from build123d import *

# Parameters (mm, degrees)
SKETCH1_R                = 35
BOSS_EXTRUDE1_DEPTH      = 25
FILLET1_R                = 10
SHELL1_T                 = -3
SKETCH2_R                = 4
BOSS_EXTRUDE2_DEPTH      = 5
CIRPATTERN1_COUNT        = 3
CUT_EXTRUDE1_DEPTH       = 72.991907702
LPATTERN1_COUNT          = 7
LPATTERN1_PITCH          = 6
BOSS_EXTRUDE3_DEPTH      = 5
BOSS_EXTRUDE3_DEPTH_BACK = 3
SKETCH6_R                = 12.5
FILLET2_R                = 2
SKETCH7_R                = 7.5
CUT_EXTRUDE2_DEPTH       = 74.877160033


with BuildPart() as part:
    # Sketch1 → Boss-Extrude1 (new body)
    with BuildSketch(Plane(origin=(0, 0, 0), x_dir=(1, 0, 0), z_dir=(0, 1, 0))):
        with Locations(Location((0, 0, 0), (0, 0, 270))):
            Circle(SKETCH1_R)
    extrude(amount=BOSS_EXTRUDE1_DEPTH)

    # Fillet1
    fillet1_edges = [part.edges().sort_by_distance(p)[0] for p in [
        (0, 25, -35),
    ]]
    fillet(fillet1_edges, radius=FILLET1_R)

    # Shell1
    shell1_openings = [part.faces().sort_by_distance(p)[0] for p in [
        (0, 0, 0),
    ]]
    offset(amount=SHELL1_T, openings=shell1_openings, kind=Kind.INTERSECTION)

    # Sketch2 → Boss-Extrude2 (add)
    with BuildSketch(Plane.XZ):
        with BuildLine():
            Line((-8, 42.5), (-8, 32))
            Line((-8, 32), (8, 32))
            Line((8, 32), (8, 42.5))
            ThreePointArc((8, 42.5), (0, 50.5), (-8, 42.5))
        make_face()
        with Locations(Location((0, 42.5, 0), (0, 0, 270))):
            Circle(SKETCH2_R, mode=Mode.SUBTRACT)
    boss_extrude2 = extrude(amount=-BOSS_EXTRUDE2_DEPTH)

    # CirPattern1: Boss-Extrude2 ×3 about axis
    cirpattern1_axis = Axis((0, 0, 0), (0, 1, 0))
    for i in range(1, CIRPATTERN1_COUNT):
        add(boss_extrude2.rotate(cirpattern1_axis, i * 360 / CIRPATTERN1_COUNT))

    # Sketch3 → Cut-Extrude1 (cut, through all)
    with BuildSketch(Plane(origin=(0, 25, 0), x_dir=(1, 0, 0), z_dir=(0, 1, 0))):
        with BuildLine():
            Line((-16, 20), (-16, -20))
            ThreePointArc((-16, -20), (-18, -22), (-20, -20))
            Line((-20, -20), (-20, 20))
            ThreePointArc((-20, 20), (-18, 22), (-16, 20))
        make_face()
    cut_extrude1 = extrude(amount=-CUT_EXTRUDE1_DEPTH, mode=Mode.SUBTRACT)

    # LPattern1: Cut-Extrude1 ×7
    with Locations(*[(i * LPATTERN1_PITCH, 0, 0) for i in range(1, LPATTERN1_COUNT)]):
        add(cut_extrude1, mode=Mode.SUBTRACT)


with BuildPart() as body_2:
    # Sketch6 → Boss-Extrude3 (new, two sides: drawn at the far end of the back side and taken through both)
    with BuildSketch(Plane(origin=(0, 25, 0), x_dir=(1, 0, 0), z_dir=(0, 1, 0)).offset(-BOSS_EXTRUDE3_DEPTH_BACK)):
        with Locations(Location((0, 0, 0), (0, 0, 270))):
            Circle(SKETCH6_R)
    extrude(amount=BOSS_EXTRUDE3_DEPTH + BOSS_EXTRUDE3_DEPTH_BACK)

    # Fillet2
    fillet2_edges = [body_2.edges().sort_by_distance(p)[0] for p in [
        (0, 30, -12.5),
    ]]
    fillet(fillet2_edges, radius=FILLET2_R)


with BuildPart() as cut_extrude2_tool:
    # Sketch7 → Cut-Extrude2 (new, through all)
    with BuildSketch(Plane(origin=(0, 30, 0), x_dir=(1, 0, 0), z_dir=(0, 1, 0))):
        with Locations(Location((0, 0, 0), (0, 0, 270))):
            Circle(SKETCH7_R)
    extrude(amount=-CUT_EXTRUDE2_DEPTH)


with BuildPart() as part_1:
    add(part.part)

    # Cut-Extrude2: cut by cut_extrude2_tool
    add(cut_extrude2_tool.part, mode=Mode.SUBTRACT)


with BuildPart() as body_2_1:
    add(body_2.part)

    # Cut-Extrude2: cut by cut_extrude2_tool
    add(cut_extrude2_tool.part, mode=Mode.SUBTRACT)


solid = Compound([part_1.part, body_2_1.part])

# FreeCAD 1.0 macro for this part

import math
import FreeCAD as App
import Part
import Sketcher
from FreeCAD import Vector
Q = App.Units.Quantity


def edges_at(feature, points):
    """Names of the edges that pass closest to the given points."""
    edges = feature.Shape.Edges
    near = lambda p: min(range(len(edges)), key=lambda i: edges[i].distToShape(Part.Vertex(*p))[0])
    return sorted({f"Edge{near(p) + 1}" for p in points})


def faces_at(feature, points):
    """Names of the faces that lie closest to the given points."""
    faces = feature.Shape.Faces
    near = lambda p: min(range(len(faces)), key=lambda i: faces[i].distToShape(Part.Vertex(*p))[0])
    return sorted({f"Face{near(p) + 1}" for p in points})

doc = App.newDocument("Part")
body = doc.addObject("PartDesign::Body", "Body")

sketch1 = body.newObject("Sketcher::SketchObject", "Sketch")
sketch1.AttachmentSupport = (doc.getObject("XZ_Plane"), [""])
sketch1.MapMode = "FlatFace"
sketch1.addGeometry(Part.Circle(Vector(0, 0, 0), Vector(0, 0, 1), 35), False)
sketch1.addConstraint(Sketcher.Constraint("Coincident", 0, 3, -1, 1))
sketch1.addConstraint(Sketcher.Constraint("Diameter", 0, Q("70 mm")))
pad1 = body.newObject("PartDesign::Pad", "Pad")
pad1.Profile = sketch1
pad1.Length = 25
pad1.Reversed = True
doc.recompute()

fillet = body.newObject("PartDesign::Fillet", "Fillet")
fillet.Base = (pad1, edges_at(pad1, [(0, 25, -35)]))
fillet.Radius = 10
doc.recompute()

thickness = body.newObject("PartDesign::Thickness", "Thickness")
thickness.Base = (fillet, faces_at(fillet, [(0, 0, 0)]))
thickness.Value = 3
thickness.Reversed = True
thickness.Join = "Intersection"

sketch2 = body.newObject("Sketcher::SketchObject", "Sketch001")
sketch2.AttachmentSupport = (doc.getObject("XZ_Plane"), [""])
sketch2.MapMode = "FlatFace"
sketch2.addGeometry(Part.LineSegment(Vector(-8, 42.5, 0), Vector(-8, 32, 0)), False)
sketch2.addGeometry(Part.LineSegment(Vector(-8, 32, 0), Vector(8, 32, 0)), False)
sketch2.addGeometry(Part.LineSegment(Vector(8, 32, 0), Vector(8, 42.5, 0)), False)
sketch2.addGeometry(Part.ArcOfCircle(Part.Circle(Vector(0, 42.5, 0), Vector(0, 0, 1), 8), math.radians(0), math.radians(180)), False)
sketch2.addGeometry(Part.Circle(Vector(0, 42.5, 0), Vector(0, 0, 1), 4), False)
sketch2.addConstraint(Sketcher.Constraint("Coincident", 0, 2, 1, 1))
sketch2.addConstraint(Sketcher.Constraint("Coincident", 1, 2, 2, 1))
sketch2.addConstraint(Sketcher.Constraint("Tangent", 2, 2, 3, 1))
sketch2.addConstraint(Sketcher.Constraint("Tangent", 3, 2, 0, 1))
sketch2.addConstraint(Sketcher.Constraint("Vertical", 0))
sketch2.addConstraint(Sketcher.Constraint("Horizontal", 1))
sketch2.addConstraint(Sketcher.Constraint("Vertical", 2))
sketch2.addConstraint(Sketcher.Constraint("Coincident", 4, 3, 3, 3))
sketch2.addConstraint(Sketcher.Constraint("PointOnObject", 3, 3, -2))
sketch2.addConstraint(Sketcher.Constraint("Diameter", 4, Q("8 mm")))
sketch2.addConstraint(Sketcher.Constraint("Radius", 3, Q("8 mm")))
sketch2.addConstraint(Sketcher.Constraint("DistanceY", 0, 2, 0, 1, Q("10.5 mm")))
sketch2.addConstraint(Sketcher.Constraint("DistanceY", -1, 1, 0, 2, Q("32 mm")))
pad2 = body.newObject("PartDesign::Pad", "Pad001")
pad2.Profile = sketch2
pad2.Length = 5
pad2.Reversed = True
doc.recompute()

polarpattern = body.newObject("PartDesign::PolarPattern", "PolarPattern")
polarpattern.Originals = [pad2]
polarpattern.Axis = (doc.getObject("Y_Axis"), [""])
polarpattern.Angle = 360
polarpattern.Occurrences = 3
body.Tip = polarpattern

sketch3 = body.newObject("Sketcher::SketchObject", "Sketch002")
sketch3.AttachmentSupport = (doc.getObject("XZ_Plane"), [""])
sketch3.MapMode = "FlatFace"
sketch3.AttachmentOffset = App.Placement(Vector(0, 0, -25), App.Rotation())
sketch3.addGeometry(Part.LineSegment(Vector(-16, 20, 0), Vector(-16, -20, 0)), False)
sketch3.addGeometry(Part.ArcOfCircle(Part.Circle(Vector(-18, -20, 0), Vector(0, 0, 1), 2), math.radians(180), math.radians(360)), False)
sketch3.addGeometry(Part.LineSegment(Vector(-20, -20, 0), Vector(-20, 20, 0)), False)
sketch3.addGeometry(Part.ArcOfCircle(Part.Circle(Vector(-18, 20, 0), Vector(0, 0, 1), 2), math.radians(0), math.radians(180)), False)
sketch3.addConstraint(Sketcher.Constraint("Tangent", 0, 2, 1, 2))
sketch3.addConstraint(Sketcher.Constraint("Tangent", 1, 1, 2, 1))
sketch3.addConstraint(Sketcher.Constraint("Tangent", 2, 2, 3, 2))
sketch3.addConstraint(Sketcher.Constraint("Tangent", 3, 1, 0, 1))
sketch3.addConstraint(Sketcher.Constraint("Vertical", 0))
sketch3.addConstraint(Sketcher.Constraint("Vertical", 2))
sketch3.addConstraint(Sketcher.Constraint("Radius", 1, Q("2 mm")))
sketch3.addConstraint(Sketcher.Constraint("DistanceY", 0, 2, 0, 1, Q("40 mm")))
sketch3.addConstraint(Sketcher.Constraint("DistanceX", 1, 3, -1, 1, Q("18 mm")))
sketch3.addConstraint(Sketcher.Constraint("DistanceY", 1, 3, -1, 1, Q("20 mm")))
pocket1 = body.newObject("PartDesign::Pocket", "Pocket")
pocket1.Profile = sketch3
pocket1.Type = "ThroughAll"
pocket1.Reversed = True
doc.recompute()

linearpattern = body.newObject("PartDesign::LinearPattern", "LinearPattern")
linearpattern.Originals = [pocket1]
linearpattern.Direction = (doc.getObject("X_Axis"), [""])
linearpattern.Mode = "offset"
linearpattern.Offset = 6
linearpattern.Occurrences = 7
body.Tip = linearpattern
body2 = doc.addObject("PartDesign::Body", "Body001")

sketch4 = body2.newObject("Sketcher::SketchObject", "Sketch003")
sketch4.AttachmentSupport = (doc.getObject("XZ_Plane001"), [""])
sketch4.MapMode = "FlatFace"
sketch4.AttachmentOffset = App.Placement(Vector(0, 0, -25), App.Rotation())
sketch4.addGeometry(Part.Circle(Vector(0, 0, 0), Vector(0, 0, 1), 12), False)
sketch4.addConstraint(Sketcher.Constraint("Coincident", 0, 3, -1, 1))
sketch4.addConstraint(Sketcher.Constraint("Diameter", 0, Q("25 mm")))
pad3 = body2.newObject("PartDesign::Pad", "Pad002")
pad3.Profile = sketch4
pad3.Type = "TwoLengths"
pad3.Length = 5
pad3.Length2 = 3
pad3.Reversed = True
doc.recompute()

fillet2 = body2.newObject("PartDesign::Fillet", "Fillet001")
fillet2.Base = (pad3, edges_at(pad3, [(0, 30, -12.5)]))
fillet2.Radius = 2
body3 = doc.addObject("PartDesign::Body", "Body002")

sketch5 = body3.newObject("Sketcher::SketchObject", "Sketch004")
sketch5.AttachmentSupport = (doc.getObject("XZ_Plane002"), [""])
sketch5.MapMode = "FlatFace"
sketch5.AttachmentOffset = App.Placement(Vector(0, 0, -30), App.Rotation())
sketch5.addGeometry(Part.Circle(Vector(0, 0, 0), Vector(0, 0, 1), 8), False)
sketch5.addConstraint(Sketcher.Constraint("Coincident", 0, 3, -1, 1))
sketch5.addConstraint(Sketcher.Constraint("Diameter", 0, Q("15 mm")))
pad4 = body3.newObject("PartDesign::Pad", "Pad003")
pad4.Profile = sketch5
pad4.Length = 74.87716
doc.recompute()

body4 = doc.addObject("PartDesign::Body", "Body003")
body4.BaseFeature = body3
boolean = body.newObject("PartDesign::Boolean", "Boolean")
boolean.Type = "Cut"
boolean.addObjects([body4])
doc.recompute()

boolean2 = body2.newObject("PartDesign::Boolean", "Boolean001")
boolean2.Type = "Cut"
boolean2.addObjects([body3])

doc.recompute()
